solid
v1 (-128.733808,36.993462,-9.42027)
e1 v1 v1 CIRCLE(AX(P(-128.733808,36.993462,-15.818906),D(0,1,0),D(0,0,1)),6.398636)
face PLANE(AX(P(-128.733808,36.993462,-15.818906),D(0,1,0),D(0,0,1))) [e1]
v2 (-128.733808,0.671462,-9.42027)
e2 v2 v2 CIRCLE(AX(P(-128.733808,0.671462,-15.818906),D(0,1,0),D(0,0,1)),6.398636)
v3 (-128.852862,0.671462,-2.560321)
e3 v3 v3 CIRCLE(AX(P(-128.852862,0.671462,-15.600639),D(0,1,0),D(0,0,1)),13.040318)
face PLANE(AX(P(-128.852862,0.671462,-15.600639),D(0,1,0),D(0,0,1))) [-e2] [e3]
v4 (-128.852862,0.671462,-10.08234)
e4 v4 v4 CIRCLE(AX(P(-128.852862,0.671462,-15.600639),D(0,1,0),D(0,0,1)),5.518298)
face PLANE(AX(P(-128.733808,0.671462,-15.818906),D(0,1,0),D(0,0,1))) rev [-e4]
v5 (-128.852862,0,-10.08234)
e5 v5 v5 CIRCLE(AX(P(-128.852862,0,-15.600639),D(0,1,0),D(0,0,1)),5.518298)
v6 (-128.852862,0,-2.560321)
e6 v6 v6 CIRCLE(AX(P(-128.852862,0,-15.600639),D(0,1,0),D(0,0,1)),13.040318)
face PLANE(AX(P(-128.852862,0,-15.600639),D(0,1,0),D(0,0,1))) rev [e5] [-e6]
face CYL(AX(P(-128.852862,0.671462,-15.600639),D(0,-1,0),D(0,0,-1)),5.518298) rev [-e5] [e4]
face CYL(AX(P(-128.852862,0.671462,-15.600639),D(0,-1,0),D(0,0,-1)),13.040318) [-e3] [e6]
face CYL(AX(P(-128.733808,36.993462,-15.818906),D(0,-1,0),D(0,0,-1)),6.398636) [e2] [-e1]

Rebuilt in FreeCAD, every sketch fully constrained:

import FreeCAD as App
import Part
import Sketcher
from FreeCAD import Vector
Q = App.Units.Quantity

doc = App.newDocument("Part")
body = doc.addObject("PartDesign::Body", "Body")

sketch1 = doc.addObject("Sketcher::SketchObject", "Sketch")
body.addObject(sketch1)
sketch1.AttachmentSupport = (doc.XZ_Plane, [""])
sketch1.MapMode = "FlatFace"
sketch1.addGeometry([
    Part.Circle(Vector(-129, -16, 0), Vector(0, 0, 1), 13),
    Part.Circle(Vector(-129, -16, 0), Vector(0, 0, 1), 6),
], False)
sketch1.addConstraint([
    Sketcher.Constraint("Coincident", 1, 3, 0, 3),
    Sketcher.Constraint("Diameter", 0, 26.080636),
    Sketcher.Constraint("Diameter", 1, 11.036597),
    Sketcher.Constraint("DistanceY", 0, 3, -1, 1, 15.600639),
    Sketcher.Constraint("DistanceX", 0, 3, -1, 1, 128.852862),
])
pad1 = doc.addObject("PartDesign::Pad", "Pad")
body.addObject(pad1)
pad1.Profile = sketch1
pad1.Length = 0.671462
pad1.Reversed = True

sketch2 = doc.addObject("Sketcher::SketchObject", "Sketch001")
body.addObject(sketch2)
sketch2.AttachmentSupport = (doc.XZ_Plane, [""])
sketch2.MapMode = "FlatFace"
sketch2.AttachmentOffset = App.Placement(Vector(0, 0, -0.671462), App.Rotation())
sketch2.addGeometry(Part.Circle(Vector(-129, -16, 0), Vector(0, 0, 1), 6), False)
sketch2.addConstraint([
    Sketcher.Constraint("Diameter", 0, 12.797272),
    Sketcher.Constraint("DistanceX", 0, 3, -1, 1, 128.733808),
    Sketcher.Constraint("DistanceY", 0, 3, -1, 1, 15.818906),
])
pad2 = doc.addObject("PartDesign::Pad", "Pad001")
body.addObject(pad2)
pad2.Profile = sketch2
pad2.Length = Q("1.43 in")
pad2.Reversed = True

doc.recompute()
